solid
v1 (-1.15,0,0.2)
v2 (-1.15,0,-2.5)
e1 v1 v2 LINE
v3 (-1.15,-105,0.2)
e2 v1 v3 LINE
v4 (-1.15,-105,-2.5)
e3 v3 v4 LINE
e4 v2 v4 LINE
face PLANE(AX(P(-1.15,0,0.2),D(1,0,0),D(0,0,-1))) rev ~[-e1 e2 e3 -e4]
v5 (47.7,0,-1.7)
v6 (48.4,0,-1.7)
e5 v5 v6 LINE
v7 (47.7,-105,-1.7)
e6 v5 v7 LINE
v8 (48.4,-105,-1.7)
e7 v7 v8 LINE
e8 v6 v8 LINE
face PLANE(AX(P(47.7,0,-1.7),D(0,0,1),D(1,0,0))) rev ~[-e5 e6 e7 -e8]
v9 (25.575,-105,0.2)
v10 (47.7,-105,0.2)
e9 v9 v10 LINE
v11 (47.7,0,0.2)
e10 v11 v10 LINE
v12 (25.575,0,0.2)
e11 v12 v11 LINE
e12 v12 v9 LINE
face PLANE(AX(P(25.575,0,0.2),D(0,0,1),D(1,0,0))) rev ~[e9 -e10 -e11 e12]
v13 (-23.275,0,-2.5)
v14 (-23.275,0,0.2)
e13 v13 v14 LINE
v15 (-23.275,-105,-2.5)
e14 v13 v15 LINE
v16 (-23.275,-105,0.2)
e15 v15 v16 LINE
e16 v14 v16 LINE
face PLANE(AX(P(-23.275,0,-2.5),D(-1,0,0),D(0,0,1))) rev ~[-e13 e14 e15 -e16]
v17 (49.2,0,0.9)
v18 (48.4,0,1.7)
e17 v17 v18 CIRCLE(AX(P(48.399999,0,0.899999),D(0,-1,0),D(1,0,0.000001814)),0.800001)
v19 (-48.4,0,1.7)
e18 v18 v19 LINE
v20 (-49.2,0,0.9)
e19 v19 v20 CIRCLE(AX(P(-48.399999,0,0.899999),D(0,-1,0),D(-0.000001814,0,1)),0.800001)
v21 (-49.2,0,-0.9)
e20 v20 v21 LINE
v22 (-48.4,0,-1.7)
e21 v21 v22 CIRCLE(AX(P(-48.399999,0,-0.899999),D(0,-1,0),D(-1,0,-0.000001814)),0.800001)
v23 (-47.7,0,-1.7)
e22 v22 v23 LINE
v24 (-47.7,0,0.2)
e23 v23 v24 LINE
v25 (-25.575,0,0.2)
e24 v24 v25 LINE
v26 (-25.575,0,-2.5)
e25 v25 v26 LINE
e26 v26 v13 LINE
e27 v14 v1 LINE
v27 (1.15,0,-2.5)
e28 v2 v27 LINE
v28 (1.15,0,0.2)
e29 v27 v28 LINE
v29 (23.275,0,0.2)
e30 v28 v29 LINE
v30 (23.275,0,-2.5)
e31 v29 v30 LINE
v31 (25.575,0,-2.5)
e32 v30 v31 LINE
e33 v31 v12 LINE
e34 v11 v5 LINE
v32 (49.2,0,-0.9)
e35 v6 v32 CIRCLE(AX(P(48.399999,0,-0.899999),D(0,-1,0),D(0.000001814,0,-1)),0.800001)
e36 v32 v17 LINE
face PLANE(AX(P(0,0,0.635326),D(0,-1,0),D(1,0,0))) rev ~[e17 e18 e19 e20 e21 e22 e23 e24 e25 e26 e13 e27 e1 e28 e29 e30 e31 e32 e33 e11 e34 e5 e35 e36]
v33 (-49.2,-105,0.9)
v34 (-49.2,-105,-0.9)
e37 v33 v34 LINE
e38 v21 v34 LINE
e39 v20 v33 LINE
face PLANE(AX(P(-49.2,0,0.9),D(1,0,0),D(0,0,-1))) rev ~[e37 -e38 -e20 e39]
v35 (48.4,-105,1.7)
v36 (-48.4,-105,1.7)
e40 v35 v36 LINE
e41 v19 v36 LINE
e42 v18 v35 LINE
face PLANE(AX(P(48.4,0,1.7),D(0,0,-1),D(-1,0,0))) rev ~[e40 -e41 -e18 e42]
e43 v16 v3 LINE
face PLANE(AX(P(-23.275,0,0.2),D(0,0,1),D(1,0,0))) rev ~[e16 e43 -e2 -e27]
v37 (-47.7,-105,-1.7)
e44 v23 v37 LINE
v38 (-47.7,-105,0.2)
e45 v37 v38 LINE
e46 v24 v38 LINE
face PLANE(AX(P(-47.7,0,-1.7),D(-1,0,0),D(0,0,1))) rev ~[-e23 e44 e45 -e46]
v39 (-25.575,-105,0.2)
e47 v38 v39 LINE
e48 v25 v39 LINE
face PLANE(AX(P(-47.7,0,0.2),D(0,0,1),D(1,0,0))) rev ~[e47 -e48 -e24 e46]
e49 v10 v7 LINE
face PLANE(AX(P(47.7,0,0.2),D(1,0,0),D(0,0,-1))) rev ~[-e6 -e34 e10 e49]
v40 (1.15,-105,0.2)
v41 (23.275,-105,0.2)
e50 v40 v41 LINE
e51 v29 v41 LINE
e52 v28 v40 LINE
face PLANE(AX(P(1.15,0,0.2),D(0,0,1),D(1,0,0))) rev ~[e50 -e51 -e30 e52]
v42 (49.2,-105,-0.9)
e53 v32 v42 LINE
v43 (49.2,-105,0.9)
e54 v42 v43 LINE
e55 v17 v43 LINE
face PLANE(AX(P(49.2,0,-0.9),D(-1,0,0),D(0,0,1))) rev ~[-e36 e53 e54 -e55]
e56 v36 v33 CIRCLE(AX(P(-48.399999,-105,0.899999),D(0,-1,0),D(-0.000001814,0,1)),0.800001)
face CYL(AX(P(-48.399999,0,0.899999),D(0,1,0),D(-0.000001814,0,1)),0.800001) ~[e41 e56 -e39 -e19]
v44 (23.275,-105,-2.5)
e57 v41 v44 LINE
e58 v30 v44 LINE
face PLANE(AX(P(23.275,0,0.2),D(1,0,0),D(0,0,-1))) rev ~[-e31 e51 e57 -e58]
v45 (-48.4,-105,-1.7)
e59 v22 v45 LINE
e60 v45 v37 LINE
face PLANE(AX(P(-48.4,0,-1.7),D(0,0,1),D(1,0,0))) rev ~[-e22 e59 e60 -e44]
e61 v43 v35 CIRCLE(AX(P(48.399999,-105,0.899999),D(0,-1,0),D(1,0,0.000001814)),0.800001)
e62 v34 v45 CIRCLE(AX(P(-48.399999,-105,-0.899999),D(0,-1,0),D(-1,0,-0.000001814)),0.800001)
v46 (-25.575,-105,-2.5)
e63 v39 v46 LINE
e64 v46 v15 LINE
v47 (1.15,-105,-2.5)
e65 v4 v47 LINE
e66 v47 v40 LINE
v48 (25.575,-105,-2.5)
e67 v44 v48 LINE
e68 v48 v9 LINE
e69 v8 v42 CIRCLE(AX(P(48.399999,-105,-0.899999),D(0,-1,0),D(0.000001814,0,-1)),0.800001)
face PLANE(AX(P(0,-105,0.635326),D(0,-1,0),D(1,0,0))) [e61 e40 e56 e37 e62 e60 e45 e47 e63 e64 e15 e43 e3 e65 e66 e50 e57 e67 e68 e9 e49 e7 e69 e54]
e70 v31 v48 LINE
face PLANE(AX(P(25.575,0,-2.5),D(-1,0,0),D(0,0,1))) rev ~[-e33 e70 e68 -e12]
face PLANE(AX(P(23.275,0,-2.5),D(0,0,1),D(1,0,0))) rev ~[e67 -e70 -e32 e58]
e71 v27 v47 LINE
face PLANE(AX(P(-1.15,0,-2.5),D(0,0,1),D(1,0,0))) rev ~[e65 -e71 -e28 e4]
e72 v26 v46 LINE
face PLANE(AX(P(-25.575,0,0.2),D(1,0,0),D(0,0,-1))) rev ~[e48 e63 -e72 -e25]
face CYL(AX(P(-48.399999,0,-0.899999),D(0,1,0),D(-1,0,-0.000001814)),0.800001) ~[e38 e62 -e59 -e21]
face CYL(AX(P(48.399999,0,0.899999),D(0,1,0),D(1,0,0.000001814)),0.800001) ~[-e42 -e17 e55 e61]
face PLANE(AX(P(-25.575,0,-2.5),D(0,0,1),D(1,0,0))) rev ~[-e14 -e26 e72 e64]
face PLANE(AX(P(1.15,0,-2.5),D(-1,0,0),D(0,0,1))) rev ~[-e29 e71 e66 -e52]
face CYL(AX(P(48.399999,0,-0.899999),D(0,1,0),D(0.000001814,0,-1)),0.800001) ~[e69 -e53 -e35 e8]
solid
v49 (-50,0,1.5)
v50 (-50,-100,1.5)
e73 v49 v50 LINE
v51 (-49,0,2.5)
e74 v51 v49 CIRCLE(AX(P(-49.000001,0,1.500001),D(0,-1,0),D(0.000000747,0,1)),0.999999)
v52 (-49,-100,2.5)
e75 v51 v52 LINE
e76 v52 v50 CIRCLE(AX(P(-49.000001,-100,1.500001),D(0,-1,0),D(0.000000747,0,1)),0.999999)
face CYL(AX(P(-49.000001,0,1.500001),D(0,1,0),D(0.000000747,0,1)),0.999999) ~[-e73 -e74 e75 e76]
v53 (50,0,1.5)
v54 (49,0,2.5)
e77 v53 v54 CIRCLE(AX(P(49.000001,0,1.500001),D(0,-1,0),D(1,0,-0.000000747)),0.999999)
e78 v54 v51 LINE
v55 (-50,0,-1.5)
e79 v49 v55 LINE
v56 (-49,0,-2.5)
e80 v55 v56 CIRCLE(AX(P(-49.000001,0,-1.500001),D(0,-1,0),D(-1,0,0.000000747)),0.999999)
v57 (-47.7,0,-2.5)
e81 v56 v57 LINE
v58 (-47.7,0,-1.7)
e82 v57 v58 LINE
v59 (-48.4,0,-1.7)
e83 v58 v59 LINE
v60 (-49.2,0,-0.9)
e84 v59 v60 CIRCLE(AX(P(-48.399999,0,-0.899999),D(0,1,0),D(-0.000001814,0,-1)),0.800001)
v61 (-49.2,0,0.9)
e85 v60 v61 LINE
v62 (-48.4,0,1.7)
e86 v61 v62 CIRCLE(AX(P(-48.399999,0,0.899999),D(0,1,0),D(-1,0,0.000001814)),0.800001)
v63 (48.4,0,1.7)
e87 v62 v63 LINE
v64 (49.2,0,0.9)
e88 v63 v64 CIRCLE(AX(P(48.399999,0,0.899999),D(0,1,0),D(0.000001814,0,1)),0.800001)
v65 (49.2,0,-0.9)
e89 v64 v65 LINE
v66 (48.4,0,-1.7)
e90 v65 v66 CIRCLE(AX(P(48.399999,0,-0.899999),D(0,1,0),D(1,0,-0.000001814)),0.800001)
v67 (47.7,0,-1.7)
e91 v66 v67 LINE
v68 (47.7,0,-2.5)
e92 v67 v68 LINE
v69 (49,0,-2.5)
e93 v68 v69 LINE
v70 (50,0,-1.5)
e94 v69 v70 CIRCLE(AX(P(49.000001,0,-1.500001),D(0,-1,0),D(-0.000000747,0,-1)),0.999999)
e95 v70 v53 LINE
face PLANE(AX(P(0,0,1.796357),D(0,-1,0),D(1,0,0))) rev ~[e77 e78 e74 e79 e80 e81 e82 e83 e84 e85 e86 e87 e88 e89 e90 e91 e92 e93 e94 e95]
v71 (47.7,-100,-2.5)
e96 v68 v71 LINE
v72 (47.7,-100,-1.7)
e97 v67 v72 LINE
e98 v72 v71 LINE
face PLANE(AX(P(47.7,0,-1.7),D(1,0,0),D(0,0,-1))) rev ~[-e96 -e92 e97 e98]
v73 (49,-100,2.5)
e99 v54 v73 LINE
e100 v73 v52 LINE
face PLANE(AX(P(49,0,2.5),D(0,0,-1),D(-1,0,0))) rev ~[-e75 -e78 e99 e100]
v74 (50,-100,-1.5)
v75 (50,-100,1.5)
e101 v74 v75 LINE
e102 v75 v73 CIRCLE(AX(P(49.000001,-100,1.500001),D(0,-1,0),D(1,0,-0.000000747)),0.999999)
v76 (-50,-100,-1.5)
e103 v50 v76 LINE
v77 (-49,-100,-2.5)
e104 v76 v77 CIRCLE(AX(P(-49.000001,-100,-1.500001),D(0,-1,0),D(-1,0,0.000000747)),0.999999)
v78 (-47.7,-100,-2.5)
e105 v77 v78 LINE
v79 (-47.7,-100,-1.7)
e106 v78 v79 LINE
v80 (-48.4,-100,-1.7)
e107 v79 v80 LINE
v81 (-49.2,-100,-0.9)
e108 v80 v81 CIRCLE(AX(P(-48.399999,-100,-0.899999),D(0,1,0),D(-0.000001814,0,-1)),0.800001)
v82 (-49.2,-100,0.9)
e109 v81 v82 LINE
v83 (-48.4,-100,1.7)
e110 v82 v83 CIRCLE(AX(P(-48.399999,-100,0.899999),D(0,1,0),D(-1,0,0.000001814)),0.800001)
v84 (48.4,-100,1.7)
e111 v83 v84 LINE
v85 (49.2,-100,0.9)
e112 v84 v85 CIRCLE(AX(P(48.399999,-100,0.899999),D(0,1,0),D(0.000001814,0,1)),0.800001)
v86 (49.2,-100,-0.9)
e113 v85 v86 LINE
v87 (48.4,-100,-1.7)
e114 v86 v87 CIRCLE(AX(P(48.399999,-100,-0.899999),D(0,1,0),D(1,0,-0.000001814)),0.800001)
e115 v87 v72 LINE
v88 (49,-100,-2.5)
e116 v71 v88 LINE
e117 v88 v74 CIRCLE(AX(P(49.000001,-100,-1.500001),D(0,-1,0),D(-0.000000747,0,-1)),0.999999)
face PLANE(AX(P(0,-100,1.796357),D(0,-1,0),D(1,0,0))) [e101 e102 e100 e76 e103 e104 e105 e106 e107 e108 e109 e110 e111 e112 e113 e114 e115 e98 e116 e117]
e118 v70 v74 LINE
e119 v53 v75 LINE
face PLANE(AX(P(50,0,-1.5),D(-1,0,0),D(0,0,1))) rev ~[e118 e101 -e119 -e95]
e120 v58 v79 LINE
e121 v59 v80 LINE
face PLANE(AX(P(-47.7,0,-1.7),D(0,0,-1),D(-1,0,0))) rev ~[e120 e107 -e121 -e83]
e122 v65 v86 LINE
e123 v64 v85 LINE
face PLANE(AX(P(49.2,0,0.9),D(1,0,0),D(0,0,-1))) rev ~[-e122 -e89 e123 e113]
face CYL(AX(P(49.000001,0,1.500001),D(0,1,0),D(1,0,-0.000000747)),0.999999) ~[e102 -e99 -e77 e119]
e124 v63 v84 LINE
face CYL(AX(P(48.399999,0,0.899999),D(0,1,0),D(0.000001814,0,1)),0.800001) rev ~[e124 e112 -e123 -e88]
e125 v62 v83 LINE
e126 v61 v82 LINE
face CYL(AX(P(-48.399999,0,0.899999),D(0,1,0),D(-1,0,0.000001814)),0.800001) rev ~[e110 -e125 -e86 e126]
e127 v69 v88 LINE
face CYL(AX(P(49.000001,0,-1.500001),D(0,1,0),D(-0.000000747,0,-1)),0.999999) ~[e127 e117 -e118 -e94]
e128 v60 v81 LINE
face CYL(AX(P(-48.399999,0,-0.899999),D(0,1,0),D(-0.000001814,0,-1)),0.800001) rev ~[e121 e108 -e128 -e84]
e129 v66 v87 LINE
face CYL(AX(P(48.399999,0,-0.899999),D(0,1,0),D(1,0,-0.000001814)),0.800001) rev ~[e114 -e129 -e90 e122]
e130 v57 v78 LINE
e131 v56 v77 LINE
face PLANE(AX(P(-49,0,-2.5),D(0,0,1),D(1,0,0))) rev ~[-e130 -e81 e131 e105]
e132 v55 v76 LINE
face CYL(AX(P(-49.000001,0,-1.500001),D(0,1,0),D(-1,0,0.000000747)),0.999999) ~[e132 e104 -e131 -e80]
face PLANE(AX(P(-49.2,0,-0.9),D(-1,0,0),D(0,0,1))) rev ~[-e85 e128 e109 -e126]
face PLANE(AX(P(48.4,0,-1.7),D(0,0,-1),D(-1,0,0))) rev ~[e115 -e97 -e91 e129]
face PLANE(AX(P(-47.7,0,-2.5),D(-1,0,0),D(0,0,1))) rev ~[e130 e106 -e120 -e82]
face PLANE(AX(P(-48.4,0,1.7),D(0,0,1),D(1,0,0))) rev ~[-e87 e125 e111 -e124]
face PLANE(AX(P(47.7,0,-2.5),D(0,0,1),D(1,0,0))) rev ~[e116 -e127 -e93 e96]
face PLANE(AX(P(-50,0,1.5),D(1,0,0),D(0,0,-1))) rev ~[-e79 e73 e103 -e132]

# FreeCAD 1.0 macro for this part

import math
import FreeCAD as App
import Part
import Sketcher

doc = App.newDocument("Part")
params = doc.addObject("Spreadsheet::Sheet", "Params")
for row, (alias, value) in enumerate([
    ("sketch1_radius", "0.999999 mm"),
    ("sketch1_radius2", "0.800001 mm"),
    ("sketch1_width", "98 mm"),
    ("sketch1_height", "3 mm"),
    ("sketch1_width2", "1.3 mm"),
    ("pad1_length", "100 mm"),
    ("sketch2_radius", "0.800001 mm"),
    ("sketch2_width", "0.7 mm"),
    ("sketch2_width2", "96.8 mm"),
    ("sketch2_width3", "2.3 mm"),
    ("sketch2_height", "1.9 mm"),
    ("pad2_length", "105 mm"),
], start=1):
    params.set(f"A{row}", alias)
    params.set(f"B{row}", "=" + value)
    params.setAlias(f"B{row}", alias)

body = doc.addObject("PartDesign::Body", "Body")

# Sketch on XZ plane
sketch1 = body.newObject("Sketcher::SketchObject", "Sketch")
sketch1.AttachmentSupport = (doc.getObject("XZ_Plane"), [""])
sketch1.MapMode = "FlatFace"
sketch1.addGeometry([
    Part.ArcOfCircle(Part.Circle(App.Vector(49, 1.5, 0), App.Vector(0, 0, 1), 1), math.radians(0), math.radians(90)),  # 0
    Part.LineSegment(App.Vector(49, 2.5, 0), App.Vector(-49, 2.5, 0)),  # 1
    Part.ArcOfCircle(Part.Circle(App.Vector(-49, 1.5, 0), App.Vector(0, 0, 1), 1), math.radians(90), math.radians(180)),  # 2
    Part.LineSegment(App.Vector(-50, 1.5, 0), App.Vector(-50, -1.5, 0)),  # 3
    Part.ArcOfCircle(Part.Circle(App.Vector(-49, -1.5, 0), App.Vector(0, 0, 1), 1), math.radians(180), math.radians(270)),  # 4
    Part.LineSegment(App.Vector(-49, -2.5, 0), App.Vector(-47.7, -2.5, 0)),  # 5
    Part.LineSegment(App.Vector(-47.7, -2.5, 0), App.Vector(-47.7, -1.7, 0)),  # 6
    Part.LineSegment(App.Vector(-47.7, -1.7, 0), App.Vector(-48.4, -1.7, 0)),  # 7
    Part.ArcOfCircle(Part.Circle(App.Vector(-48.4, -0.9, 0), App.Vector(0, 0, 1), 0.8), math.radians(-180), math.radians(-90)),  # 8
    Part.LineSegment(App.Vector(-49.2, -0.9, 0), App.Vector(-49.2, 0.9, 0)),  # 9
    Part.ArcOfCircle(Part.Circle(App.Vector(-48.4, 0.9, 0), App.Vector(0, 0, 1), 0.8), math.radians(90), math.radians(180)),  # 10
    Part.LineSegment(App.Vector(-48.4, 1.7, 0), App.Vector(48.4, 1.7, 0)),  # 11
    Part.ArcOfCircle(Part.Circle(App.Vector(48.4, 0.9, 0), App.Vector(0, 0, 1), 0.8), math.radians(0), math.radians(90)),  # 12
    Part.LineSegment(App.Vector(49.2, 0.9, 0), App.Vector(49.2, -0.9, 0)),  # 13
    Part.ArcOfCircle(Part.Circle(App.Vector(48.4, -0.9, 0), App.Vector(0, 0, 1), 0.8), math.radians(-90), math.radians(0)),  # 14
    Part.LineSegment(App.Vector(48.4, -1.7, 0), App.Vector(47.7, -1.7, 0)),  # 15
    Part.LineSegment(App.Vector(47.7, -1.7, 0), App.Vector(47.7, -2.5, 0)),  # 16
    Part.LineSegment(App.Vector(47.7, -2.5, 0), App.Vector(49, -2.5, 0)),  # 17
    Part.ArcOfCircle(Part.Circle(App.Vector(49, -1.5, 0), App.Vector(0, 0, 1), 1), math.radians(-90), math.radians(0)),  # 18
    Part.LineSegment(App.Vector(50, -1.5, 0), App.Vector(50, 1.5, 0)),  # 19
], False)
sketch1.addConstraint([
    Sketcher.Constraint("Tangent", 0, 2, 1, 1),
    Sketcher.Constraint("Tangent", 1, 2, 2, 1),
    Sketcher.Constraint("Tangent", 2, 2, 3, 1),
    Sketcher.Constraint("Tangent", 3, 2, 4, 1),
    Sketcher.Constraint("Tangent", 4, 2, 5, 1),
    Sketcher.Constraint("Coincident", 5, 2, 6, 1),
    Sketcher.Constraint("Coincident", 6, 2, 7, 1),
    Sketcher.Constraint("Tangent", 7, 2, 8, 2),
    Sketcher.Constraint("Tangent", 8, 1, 9, 1),
    Sketcher.Constraint("Tangent", 9, 2, 10, 2),
    Sketcher.Constraint("Tangent", 10, 1, 11, 1),
    Sketcher.Constraint("Tangent", 11, 2, 12, 2),
    Sketcher.Constraint("Tangent", 12, 1, 13, 1),
    Sketcher.Constraint("Tangent", 13, 2, 14, 2),
    Sketcher.Constraint("Tangent", 14, 1, 15, 1),
    Sketcher.Constraint("Coincident", 15, 2, 16, 1),
    Sketcher.Constraint("Coincident", 16, 2, 17, 1),
    Sketcher.Constraint("Tangent", 17, 2, 18, 1),
    Sketcher.Constraint("Tangent", 18, 2, 19, 1),
    Sketcher.Constraint("Tangent", 19, 2, 0, 1),
    Sketcher.Constraint("Horizontal", 1),
    Sketcher.Constraint("Vertical", 3),
    Sketcher.Constraint("Horizontal", 5),
    Sketcher.Constraint("Vertical", 6),
    Sketcher.Constraint("Horizontal", 7),
    Sketcher.Constraint("Vertical", 9),
    Sketcher.Constraint("Horizontal", 11),
    Sketcher.Constraint("Vertical", 13),
    Sketcher.Constraint("Horizontal", 15),
    Sketcher.Constraint("Vertical", 16),
    Sketcher.Constraint("Horizontal", 17),
    Sketcher.Constraint("Vertical", 19),
    Sketcher.Constraint("Equal", 0, 2),
    Sketcher.Constraint("Equal", 2, 4),
    Sketcher.Constraint("Equal", 8, 10),
    Sketcher.Constraint("Equal", 10, 12),
    Sketcher.Constraint("Equal", 12, 14),
    Sketcher.Constraint("Equal", 4, 18),
    Sketcher.Constraint("Symmetric", 0, 3, 4, 3, -1, 1),
    Sketcher.Constraint("Symmetric", 8, 3, 12, 3, -1, 1),
    Sketcher.Constraint("Symmetric", 6, 2, 15, 2, -2),
    Sketcher.Constraint("Horizontal", 4, 3, 18, 3),
    Sketcher.Constraint("Radius", 0, 0.999999),
    Sketcher.Constraint("Radius", 8, 0.800001),
    Sketcher.Constraint("DistanceX", 1, 2, 1, 1, 98.0),
    Sketcher.Constraint("DistanceY", 3, 2, 3, 1, 3.0),
    Sketcher.Constraint("DistanceX", 5, 1, 5, 2, 1.3),
    Sketcher.Constraint("DistanceX", 7, 2, 7, 1, 0.7),
    Sketcher.Constraint("DistanceY", 6, 1, 6, 2, 0.8),
])
sketch1.setExpression("Constraints[42]", "Params.sketch1_radius")
sketch1.setExpression("Constraints[43]", "Params.sketch1_radius2")
sketch1.setExpression("Constraints[44]", "Params.sketch1_width")
sketch1.setExpression("Constraints[45]", "Params.sketch1_height")
sketch1.setExpression("Constraints[46]", "Params.sketch1_width2")
pad1 = body.newObject("PartDesign::Pad", "Pad")
pad1.Profile = sketch1
pad1.setExpression("Length", "Params.pad1_length")
body2 = doc.addObject("PartDesign::Body", "Body001")

# Sketch on XZ plane
sketch2 = body2.newObject("Sketcher::SketchObject", "Sketch001")
sketch2.AttachmentSupport = (doc.getObject("XZ_Plane001"), [""])
sketch2.MapMode = "FlatFace"
sketch2.addGeometry([
    Part.LineSegment(App.Vector(47.7, 0.2, 0), App.Vector(47.7, -1.7, 0)),  # 0
    Part.LineSegment(App.Vector(47.7, -1.7, 0), App.Vector(48.4, -1.7, 0)),  # 1
    Part.ArcOfCircle(Part.Circle(App.Vector(48.4, -0.9, 0), App.Vector(0, 0, 1), 0.8), math.radians(-90), math.radians(0)),  # 2
    Part.LineSegment(App.Vector(49.2, -0.9, 0), App.Vector(49.2, 0.9, 0)),  # 3
    Part.ArcOfCircle(Part.Circle(App.Vector(48.4, 0.9, 0), App.Vector(0, 0, 1), 0.8), math.radians(0), math.radians(90)),  # 4
    Part.LineSegment(App.Vector(48.4, 1.7, 0), App.Vector(-48.4, 1.7, 0)),  # 5
    Part.ArcOfCircle(Part.Circle(App.Vector(-48.4, 0.9, 0), App.Vector(0, 0, 1), 0.8), math.radians(90), math.radians(180)),  # 6
    Part.LineSegment(App.Vector(-49.2, 0.9, 0), App.Vector(-49.2, -0.9, 0)),  # 7
    Part.ArcOfCircle(Part.Circle(App.Vector(-48.4, -0.9, 0), App.Vector(0, 0, 1), 0.8), math.radians(-180), math.radians(-90)),  # 8
    Part.LineSegment(App.Vector(-48.4, -1.7, 0), App.Vector(-47.7, -1.7, 0)),  # 9
    Part.LineSegment(App.Vector(-47.7, -1.7, 0), App.Vector(-47.7, 0.2, 0)),  # 10
    Part.LineSegment(App.Vector(-47.7, 0.2, 0), App.Vector(-25.6, 0.2, 0)),  # 11
    Part.LineSegment(App.Vector(-25.6, 0.2, 0), App.Vector(-25.6, -2.5, 0)),  # 12
    Part.LineSegment(App.Vector(-25.6, -2.5, 0), App.Vector(-23.3, -2.5, 0)),  # 13
    Part.LineSegment(App.Vector(-23.3, -2.5, 0), App.Vector(-23.3, 0.2, 0)),  # 14
    Part.LineSegment(App.Vector(-23.3, 0.2, 0), App.Vector(-1.1, 0.2, 0)),  # 15
    Part.LineSegment(App.Vector(-1.1, 0.2, 0), App.Vector(-1.1, -2.5, 0)),  # 16
    Part.LineSegment(App.Vector(-1.1, -2.5, 0), App.Vector(1.1, -2.5, 0)),  # 17
    Part.LineSegment(App.Vector(1.1, -2.5, 0), App.Vector(1.1, 0.2, 0)),  # 18
    Part.LineSegment(App.Vector(1.1, 0.2, 0), App.Vector(23.3, 0.2, 0)),  # 19
    Part.LineSegment(App.Vector(23.3, 0.2, 0), App.Vector(23.3, -2.5, 0)),  # 20
    Part.LineSegment(App.Vector(23.3, -2.5, 0), App.Vector(25.6, -2.5, 0)),  # 21
    Part.LineSegment(App.Vector(25.6, -2.5, 0), App.Vector(25.6, 0.2, 0)),  # 22
    Part.LineSegment(App.Vector(25.6, 0.2, 0), App.Vector(47.7, 0.2, 0)),  # 23
], False)
sketch2.addConstraint([
    Sketcher.Constraint("Coincident", 0, 2, 1, 1),
    Sketcher.Constraint("Tangent", 1, 2, 2, 1),
    Sketcher.Constraint("Tangent", 2, 2, 3, 1),
    Sketcher.Constraint("Tangent", 3, 2, 4, 1),
    Sketcher.Constraint("Tangent", 4, 2, 5, 1),
    Sketcher.Constraint("Tangent", 5, 2, 6, 1),
    Sketcher.Constraint("Tangent", 6, 2, 7, 1),
    Sketcher.Constraint("Tangent", 7, 2, 8, 1),
    Sketcher.Constraint("Tangent", 8, 2, 9, 1),
    Sketcher.Constraint("Coincident", 9, 2, 10, 1),
    Sketcher.Constraint("Coincident", 10, 2, 11, 1),
    Sketcher.Constraint("Coincident", 11, 2, 12, 1),
    Sketcher.Constraint("Coincident", 12, 2, 13, 1),
    Sketcher.Constraint("Coincident", 13, 2, 14, 1),
    Sketcher.Constraint("Coincident", 14, 2, 15, 1),
    Sketcher.Constraint("Coincident", 15, 2, 16, 1),
    Sketcher.Constraint("Coincident", 16, 2, 17, 1),
    Sketcher.Constraint("Coincident", 17, 2, 18, 1),
    Sketcher.Constraint("Coincident", 18, 2, 19, 1),
    Sketcher.Constraint("Coincident", 19, 2, 20, 1),
    Sketcher.Constraint("Coincident", 20, 2, 21, 1),
    Sketcher.Constraint("Coincident", 21, 2, 22, 1),
    Sketcher.Constraint("Coincident", 22, 2, 23, 1),
    Sketcher.Constraint("Coincident", 23, 2, 0, 1),
    Sketcher.Constraint("Vertical", 0),
    Sketcher.Constraint("Horizontal", 1),
    Sketcher.Constraint("Vertical", 3),
    Sketcher.Constraint("Horizontal", 5),
    Sketcher.Constraint("Vertical", 7),
    Sketcher.Constraint("Horizontal", 9),
    Sketcher.Constraint("Vertical", 10),
    Sketcher.Constraint("Horizontal", 11),
    Sketcher.Constraint("Vertical", 12),
    Sketcher.Constraint("Horizontal", 13),
    Sketcher.Constraint("Vertical", 14),
    Sketcher.Constraint("Horizontal", 15),
    Sketcher.Constraint("Vertical", 16),
    Sketcher.Constraint("Horizontal", 17),
    Sketcher.Constraint("Vertical", 18),
    Sketcher.Constraint("Horizontal", 19),
    Sketcher.Constraint("Vertical", 20),
    Sketcher.Constraint("Horizontal", 21),
    Sketcher.Constraint("Vertical", 22),
    Sketcher.Constraint("Horizontal", 23),
    Sketcher.Constraint("Equal", 2, 4),
    Sketcher.Constraint("Equal", 4, 6),
    Sketcher.Constraint("Equal", 6, 8),
    Sketcher.Constraint("Symmetric", 2, 3, 6, 3, -1, 1),
    Sketcher.Constraint("Symmetric", 0, 2, 9, 2, -2),
    Sketcher.Constraint("Symmetric", 15, 2, 18, 2, -2),
    Sketcher.Constraint("Symmetric", 13, 2, 20, 2, -2),
    Sketcher.Constraint("Symmetric", 11, 2, 22, 2, -2),
    Sketcher.Constraint("Horizontal", 11, 2, 14, 2),
    Sketcher.Constraint("Horizontal", 13, 2, 16, 2),
    Sketcher.Constraint("Equal", 11, 15),
    Sketcher.Constraint("Equal", 13, 17),
    Sketcher.Constraint("Radius", 2, 0.800001),
    Sketcher.Constraint("DistanceX", 1, 1, 1, 2, 0.7),
    Sketcher.Constraint("DistanceX", 5, 2, 5, 1, 96.8),
    Sketcher.Constraint("DistanceX", 13, 1, 13, 2, 2.3),
    Sketcher.Constraint("DistanceY", 0, 2, 0, 1, 1.9),
    Sketcher.Constraint("DistanceY", 3, 1, 3, 2, 1.8),
    Sketcher.Constraint("DistanceY", 12, 2, 12, 1, 2.7),
])
sketch2.setExpression("Constraints[56]", "Params.sketch2_radius")
sketch2.setExpression("Constraints[57]", "Params.sketch2_width")
sketch2.setExpression("Constraints[58]", "Params.sketch2_width2")
sketch2.setExpression("Constraints[59]", "Params.sketch2_width3")
sketch2.setExpression("Constraints[60]", "Params.sketch2_height")
pad2 = body2.newObject("PartDesign::Pad", "Pad001")
pad2.Profile = sketch2
pad2.setExpression("Length", "Params.pad2_length")

doc.recompute()
